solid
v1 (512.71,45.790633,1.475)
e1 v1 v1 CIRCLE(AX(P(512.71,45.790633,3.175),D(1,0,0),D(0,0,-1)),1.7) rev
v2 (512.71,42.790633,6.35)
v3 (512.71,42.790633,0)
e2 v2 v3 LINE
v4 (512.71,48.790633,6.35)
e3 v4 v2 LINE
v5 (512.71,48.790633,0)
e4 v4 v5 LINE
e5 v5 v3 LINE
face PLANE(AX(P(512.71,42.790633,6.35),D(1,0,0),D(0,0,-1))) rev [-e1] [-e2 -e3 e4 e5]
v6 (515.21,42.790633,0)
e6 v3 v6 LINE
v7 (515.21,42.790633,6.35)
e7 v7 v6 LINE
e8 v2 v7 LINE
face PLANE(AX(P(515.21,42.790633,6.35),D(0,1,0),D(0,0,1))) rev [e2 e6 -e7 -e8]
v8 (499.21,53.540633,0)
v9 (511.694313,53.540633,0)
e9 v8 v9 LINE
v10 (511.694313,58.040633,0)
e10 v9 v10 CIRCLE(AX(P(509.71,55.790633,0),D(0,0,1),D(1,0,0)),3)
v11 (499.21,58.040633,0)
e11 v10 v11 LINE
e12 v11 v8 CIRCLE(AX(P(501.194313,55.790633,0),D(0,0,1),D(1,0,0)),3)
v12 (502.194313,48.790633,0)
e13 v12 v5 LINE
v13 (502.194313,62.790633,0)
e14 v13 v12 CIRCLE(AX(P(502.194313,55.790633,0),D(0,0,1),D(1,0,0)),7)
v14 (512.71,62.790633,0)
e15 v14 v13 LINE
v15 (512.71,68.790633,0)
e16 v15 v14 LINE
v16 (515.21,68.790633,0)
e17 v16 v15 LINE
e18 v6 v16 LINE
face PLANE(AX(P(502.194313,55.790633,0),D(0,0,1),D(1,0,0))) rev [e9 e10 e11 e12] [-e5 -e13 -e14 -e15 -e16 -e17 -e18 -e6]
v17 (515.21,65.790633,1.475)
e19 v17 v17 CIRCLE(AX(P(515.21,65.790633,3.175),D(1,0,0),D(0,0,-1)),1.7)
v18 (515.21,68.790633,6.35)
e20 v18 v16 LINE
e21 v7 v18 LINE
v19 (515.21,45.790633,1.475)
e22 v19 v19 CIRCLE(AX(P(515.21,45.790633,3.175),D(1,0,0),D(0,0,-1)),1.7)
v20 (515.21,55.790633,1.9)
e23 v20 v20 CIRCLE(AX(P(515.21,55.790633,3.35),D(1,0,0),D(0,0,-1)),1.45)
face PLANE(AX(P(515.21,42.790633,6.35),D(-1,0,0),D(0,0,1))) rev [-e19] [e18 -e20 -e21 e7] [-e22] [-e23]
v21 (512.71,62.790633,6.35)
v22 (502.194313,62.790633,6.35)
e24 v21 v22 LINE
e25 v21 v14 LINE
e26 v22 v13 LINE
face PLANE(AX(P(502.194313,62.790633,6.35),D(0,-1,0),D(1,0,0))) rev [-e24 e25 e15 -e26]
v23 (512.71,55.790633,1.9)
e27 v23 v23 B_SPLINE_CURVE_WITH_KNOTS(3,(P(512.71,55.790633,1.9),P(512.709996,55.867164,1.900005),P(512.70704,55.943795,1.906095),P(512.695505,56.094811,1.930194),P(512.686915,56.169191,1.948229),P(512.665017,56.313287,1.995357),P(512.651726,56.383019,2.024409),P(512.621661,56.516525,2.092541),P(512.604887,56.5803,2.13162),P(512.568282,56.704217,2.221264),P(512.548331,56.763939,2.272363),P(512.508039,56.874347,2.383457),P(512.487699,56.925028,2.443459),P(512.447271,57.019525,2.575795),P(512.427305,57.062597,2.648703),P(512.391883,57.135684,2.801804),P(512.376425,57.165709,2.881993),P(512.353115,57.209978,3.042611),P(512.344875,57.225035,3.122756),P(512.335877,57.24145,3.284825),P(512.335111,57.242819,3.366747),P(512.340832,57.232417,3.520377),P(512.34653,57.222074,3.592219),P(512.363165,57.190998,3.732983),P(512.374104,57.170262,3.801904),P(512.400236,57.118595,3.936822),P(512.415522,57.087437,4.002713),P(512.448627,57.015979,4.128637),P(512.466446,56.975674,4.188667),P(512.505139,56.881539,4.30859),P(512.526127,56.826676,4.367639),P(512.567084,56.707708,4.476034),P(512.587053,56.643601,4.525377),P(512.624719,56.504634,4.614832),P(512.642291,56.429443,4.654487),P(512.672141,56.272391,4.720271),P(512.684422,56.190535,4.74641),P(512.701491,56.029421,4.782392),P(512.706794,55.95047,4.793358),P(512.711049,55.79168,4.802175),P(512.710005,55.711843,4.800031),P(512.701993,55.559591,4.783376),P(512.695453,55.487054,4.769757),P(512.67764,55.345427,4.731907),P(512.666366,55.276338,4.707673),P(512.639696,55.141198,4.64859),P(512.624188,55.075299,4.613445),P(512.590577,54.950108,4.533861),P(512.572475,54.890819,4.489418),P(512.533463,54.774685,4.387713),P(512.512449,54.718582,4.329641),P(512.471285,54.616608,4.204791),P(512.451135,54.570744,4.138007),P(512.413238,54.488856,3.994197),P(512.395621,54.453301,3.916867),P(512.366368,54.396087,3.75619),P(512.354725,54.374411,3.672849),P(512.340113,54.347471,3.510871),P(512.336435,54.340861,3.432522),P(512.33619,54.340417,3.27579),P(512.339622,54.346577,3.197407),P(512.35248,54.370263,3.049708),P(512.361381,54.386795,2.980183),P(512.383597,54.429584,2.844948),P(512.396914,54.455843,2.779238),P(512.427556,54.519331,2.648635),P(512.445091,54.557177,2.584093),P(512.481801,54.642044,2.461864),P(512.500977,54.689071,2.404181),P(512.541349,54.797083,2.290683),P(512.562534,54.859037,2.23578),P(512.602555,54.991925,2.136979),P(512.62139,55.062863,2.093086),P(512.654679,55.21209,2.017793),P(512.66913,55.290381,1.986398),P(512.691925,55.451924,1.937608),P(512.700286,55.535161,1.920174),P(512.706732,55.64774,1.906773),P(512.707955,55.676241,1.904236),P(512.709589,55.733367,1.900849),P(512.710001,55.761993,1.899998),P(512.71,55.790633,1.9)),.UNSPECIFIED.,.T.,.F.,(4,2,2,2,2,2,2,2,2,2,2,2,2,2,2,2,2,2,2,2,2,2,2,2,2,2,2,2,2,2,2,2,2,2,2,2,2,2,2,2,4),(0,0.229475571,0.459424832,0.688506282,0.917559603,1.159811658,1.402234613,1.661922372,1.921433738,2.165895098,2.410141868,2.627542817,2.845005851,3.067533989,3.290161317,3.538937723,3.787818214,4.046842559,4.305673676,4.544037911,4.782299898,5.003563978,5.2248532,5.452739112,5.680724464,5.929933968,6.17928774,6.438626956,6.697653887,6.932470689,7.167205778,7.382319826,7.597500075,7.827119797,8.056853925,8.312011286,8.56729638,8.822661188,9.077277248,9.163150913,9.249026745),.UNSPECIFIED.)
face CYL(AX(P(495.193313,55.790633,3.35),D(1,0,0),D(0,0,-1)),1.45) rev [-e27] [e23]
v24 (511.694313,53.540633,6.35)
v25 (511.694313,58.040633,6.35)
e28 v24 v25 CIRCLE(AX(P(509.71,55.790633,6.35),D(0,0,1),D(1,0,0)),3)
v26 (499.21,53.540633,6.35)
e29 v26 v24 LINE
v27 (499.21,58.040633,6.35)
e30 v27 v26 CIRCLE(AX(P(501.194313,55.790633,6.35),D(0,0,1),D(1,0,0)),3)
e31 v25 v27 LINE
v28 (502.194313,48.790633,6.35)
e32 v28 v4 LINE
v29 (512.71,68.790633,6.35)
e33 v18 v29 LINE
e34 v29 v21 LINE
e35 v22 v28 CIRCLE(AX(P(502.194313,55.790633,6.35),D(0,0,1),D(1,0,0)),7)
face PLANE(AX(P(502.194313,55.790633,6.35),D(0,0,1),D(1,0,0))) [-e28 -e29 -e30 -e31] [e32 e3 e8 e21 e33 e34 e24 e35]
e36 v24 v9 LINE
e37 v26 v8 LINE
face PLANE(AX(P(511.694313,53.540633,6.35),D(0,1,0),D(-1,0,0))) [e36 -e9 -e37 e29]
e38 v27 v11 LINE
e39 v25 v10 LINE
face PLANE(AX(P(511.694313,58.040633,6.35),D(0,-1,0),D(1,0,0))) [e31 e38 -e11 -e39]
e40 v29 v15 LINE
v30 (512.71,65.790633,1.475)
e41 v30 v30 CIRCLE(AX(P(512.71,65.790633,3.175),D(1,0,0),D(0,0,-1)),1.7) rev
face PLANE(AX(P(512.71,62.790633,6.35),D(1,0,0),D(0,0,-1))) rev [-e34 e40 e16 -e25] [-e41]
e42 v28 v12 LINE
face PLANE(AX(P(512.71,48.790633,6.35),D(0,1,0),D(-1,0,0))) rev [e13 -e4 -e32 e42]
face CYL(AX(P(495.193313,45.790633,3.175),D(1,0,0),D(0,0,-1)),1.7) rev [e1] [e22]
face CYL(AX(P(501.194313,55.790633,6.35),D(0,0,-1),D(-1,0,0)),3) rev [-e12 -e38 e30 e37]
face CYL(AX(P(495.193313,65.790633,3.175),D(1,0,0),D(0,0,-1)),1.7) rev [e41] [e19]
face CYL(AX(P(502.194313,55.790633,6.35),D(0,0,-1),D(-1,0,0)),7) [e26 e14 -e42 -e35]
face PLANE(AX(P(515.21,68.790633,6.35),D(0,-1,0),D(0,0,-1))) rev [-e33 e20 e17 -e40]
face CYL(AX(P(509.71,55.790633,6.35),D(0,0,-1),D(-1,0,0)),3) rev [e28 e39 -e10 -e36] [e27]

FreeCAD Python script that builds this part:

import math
import FreeCAD as App
import Part
import Sketcher

doc = App.newDocument("Part")
body = doc.addObject("PartDesign::Body", "Body")

sketch1 = body.newObject("Sketcher::SketchObject", "Sketch")
sketch1.AttachmentSupport = (doc.getObject("XY_Plane"), [""])
sketch1.MapMode = "FlatFace"
sketch1.addGeometry([
    Part.LineSegment(App.Vector(512.7, 42.8, 0), App.Vector(515.2, 42.8, 0)),
    Part.LineSegment(App.Vector(515.2, 42.8, 0), App.Vector(515.2, 68.8, 0)),
    Part.LineSegment(App.Vector(515.2, 68.8, 0), App.Vector(512.7, 68.8, 0)),
    Part.LineSegment(App.Vector(512.7, 68.8, 0), App.Vector(512.7, 62.8, 0)),
    Part.LineSegment(App.Vector(512.7, 62.8, 0), App.Vector(502.2, 62.8, 0)),
    Part.ArcOfCircle(Part.Circle(App.Vector(502.2, 55.8, 0), App.Vector(0, 0, 1), 7), math.radians(90), math.radians(270)),
    Part.LineSegment(App.Vector(502.2, 48.8, 0), App.Vector(512.7, 48.8, 0)),
    Part.LineSegment(App.Vector(512.7, 48.8, 0), App.Vector(512.7, 42.8, 0)),
    Part.LineSegment(App.Vector(511.7, 53.5, 0), App.Vector(499.2, 53.5, 0)),
    Part.ArcOfCircle(Part.Circle(App.Vector(501.2, 55.8, 0), App.Vector(0, 0, 1), 3), math.radians(131), math.radians(229)),
    Part.LineSegment(App.Vector(499.2, 58, 0), App.Vector(511.7, 58, 0)),
    Part.ArcOfCircle(Part.Circle(App.Vector(509.7, 55.8, 0), App.Vector(0, 0, 1), 3), math.radians(-49), math.radians(49)),
], False)
sketch1.addConstraint([
    Sketcher.Constraint("Coincident", 0, 2, 1, 1),
    Sketcher.Constraint("Coincident", 1, 2, 2, 1),
    Sketcher.Constraint("Coincident", 2, 2, 3, 1),
    Sketcher.Constraint("Coincident", 3, 2, 4, 1),
    Sketcher.Constraint("Tangent", 4, 2, 5, 1),
    Sketcher.Constraint("Tangent", 5, 2, 6, 1),
    Sketcher.Constraint("Coincident", 6, 2, 7, 1),
    Sketcher.Constraint("Coincident", 7, 2, 0, 1),
    Sketcher.Constraint("Coincident", 8, 2, 9, 2),
    Sketcher.Constraint("Coincident", 9, 1, 10, 1),
    Sketcher.Constraint("Coincident", 10, 2, 11, 2),
    Sketcher.Constraint("Coincident", 11, 1, 8, 1),
    Sketcher.Constraint("Horizontal", 0),
    Sketcher.Constraint("Vertical", 1),
    Sketcher.Constraint("Horizontal", 2),
    Sketcher.Constraint("Vertical", 3),
    Sketcher.Constraint("Horizontal", 4),
    Sketcher.Constraint("Horizontal", 6),
    Sketcher.Constraint("Vertical", 7),
    Sketcher.Constraint("Horizontal", 8),
    Sketcher.Constraint("Horizontal", 10),
    Sketcher.Constraint("Equal", 9, 11),
    Sketcher.Constraint("Horizontal", 5, 3, 9, 3),
    Sketcher.Constraint("Horizontal", 9, 3, 11, 3),
    Sketcher.Constraint("Vertical", 3, 2, 6, 2),
    Sketcher.Constraint("Vertical", 8, 2, 9, 1),
    Sketcher.Constraint("Equal", 3, 7),
    Sketcher.Constraint("Radius", 5, 7.0),
    Sketcher.Constraint("Radius", 9, 3.0),
    Sketcher.Constraint("DistanceY", 1, 1, 1, 2, 26.0),
    Sketcher.Constraint("DistanceX", 0, 1, 0, 2, 2.5),
    Sketcher.Constraint("DistanceX", 9, 3, 5, 3, 1.0),
    Sketcher.Constraint("DistanceX", 11, 3, 2, 2, 3.0),
    Sketcher.Constraint("DistanceX", 8, 2, 11, 3, 10.5),
    Sketcher.Constraint("DistanceY", 8, 2, 9, 1, 4.5),
    Sketcher.Constraint("DistanceX", -1, 1, 11, 3, 509.71),
    Sketcher.Constraint("DistanceY", -1, 1, 5, 3, 55.790633),
])
pad1 = body.newObject("PartDesign::Pad", "Pad")
pad1.Profile = sketch1
pad1.Length = 6.35

sketch2 = body.newObject("Sketcher::SketchObject", "Sketch001")
sketch2.AttachmentSupport = (doc.getObject("YZ_Plane"), [""])
sketch2.MapMode = "FlatFace"
sketch2.AttachmentOffset = App.Placement(App.Vector(0, 0, 515.21), App.Rotation())
sketch2.addGeometry(Part.Circle(App.Vector(45.8, 3.2, 0), App.Vector(0, 0, 1), 1.7), False)
sketch2.addConstraint([
    Sketcher.Constraint("Diameter", 0, 3.4),
    Sketcher.Constraint("DistanceY", -1, 1, 0, 3, 3.175),
    Sketcher.Constraint("DistanceX", -1, 1, 0, 3, 45.790633),
])
pocket1 = body.newObject("PartDesign::Pocket", "Pocket")
pocket1.Profile = sketch2
pocket1.Type = "UpToFirst"

sketch3 = body.newObject("Sketcher::SketchObject", "Sketch002")
sketch3.AttachmentSupport = (doc.getObject("YZ_Plane"), [""])
sketch3.MapMode = "FlatFace"
sketch3.AttachmentOffset = App.Placement(App.Vector(0, 0, 515.21), App.Rotation())
sketch3.addGeometry(Part.Circle(App.Vector(55.8, 3.4, 0), App.Vector(0, 0, 1), 1.4), False)
sketch3.addConstraint([
    Sketcher.Constraint("Diameter", 0, 2.9),
    Sketcher.Constraint("DistanceY", -1, 1, 0, 3, 3.35),
    Sketcher.Constraint("DistanceX", -1, 1, 0, 3, 55.790633),
])
pocket2 = body.newObject("PartDesign::Pocket", "Pocket001")
pocket2.Profile = sketch3
pocket2.Type = "UpToFirst"

sketch4 = body.newObject("Sketcher::SketchObject", "Sketch003")
sketch4.AttachmentSupport = (doc.getObject("YZ_Plane"), [""])
sketch4.MapMode = "FlatFace"
sketch4.AttachmentOffset = App.Placement(App.Vector(0, 0, 515.21), App.Rotation())
sketch4.addGeometry(Part.Circle(App.Vector(65.8, 3.2, 0), App.Vector(0, 0, 1), 1.7), False)
sketch4.addConstraint([
    Sketcher.Constraint("Diameter", 0, 3.4),
    Sketcher.Constraint("DistanceY", -1, 1, 0, 3, 3.175),
    Sketcher.Constraint("DistanceX", -1, 1, 0, 3, 65.790633),
])
pocket3 = body.newObject("PartDesign::Pocket", "Pocket002")
pocket3.Profile = sketch4
pocket3.Type = "UpToFirst"

doc.recompute()
